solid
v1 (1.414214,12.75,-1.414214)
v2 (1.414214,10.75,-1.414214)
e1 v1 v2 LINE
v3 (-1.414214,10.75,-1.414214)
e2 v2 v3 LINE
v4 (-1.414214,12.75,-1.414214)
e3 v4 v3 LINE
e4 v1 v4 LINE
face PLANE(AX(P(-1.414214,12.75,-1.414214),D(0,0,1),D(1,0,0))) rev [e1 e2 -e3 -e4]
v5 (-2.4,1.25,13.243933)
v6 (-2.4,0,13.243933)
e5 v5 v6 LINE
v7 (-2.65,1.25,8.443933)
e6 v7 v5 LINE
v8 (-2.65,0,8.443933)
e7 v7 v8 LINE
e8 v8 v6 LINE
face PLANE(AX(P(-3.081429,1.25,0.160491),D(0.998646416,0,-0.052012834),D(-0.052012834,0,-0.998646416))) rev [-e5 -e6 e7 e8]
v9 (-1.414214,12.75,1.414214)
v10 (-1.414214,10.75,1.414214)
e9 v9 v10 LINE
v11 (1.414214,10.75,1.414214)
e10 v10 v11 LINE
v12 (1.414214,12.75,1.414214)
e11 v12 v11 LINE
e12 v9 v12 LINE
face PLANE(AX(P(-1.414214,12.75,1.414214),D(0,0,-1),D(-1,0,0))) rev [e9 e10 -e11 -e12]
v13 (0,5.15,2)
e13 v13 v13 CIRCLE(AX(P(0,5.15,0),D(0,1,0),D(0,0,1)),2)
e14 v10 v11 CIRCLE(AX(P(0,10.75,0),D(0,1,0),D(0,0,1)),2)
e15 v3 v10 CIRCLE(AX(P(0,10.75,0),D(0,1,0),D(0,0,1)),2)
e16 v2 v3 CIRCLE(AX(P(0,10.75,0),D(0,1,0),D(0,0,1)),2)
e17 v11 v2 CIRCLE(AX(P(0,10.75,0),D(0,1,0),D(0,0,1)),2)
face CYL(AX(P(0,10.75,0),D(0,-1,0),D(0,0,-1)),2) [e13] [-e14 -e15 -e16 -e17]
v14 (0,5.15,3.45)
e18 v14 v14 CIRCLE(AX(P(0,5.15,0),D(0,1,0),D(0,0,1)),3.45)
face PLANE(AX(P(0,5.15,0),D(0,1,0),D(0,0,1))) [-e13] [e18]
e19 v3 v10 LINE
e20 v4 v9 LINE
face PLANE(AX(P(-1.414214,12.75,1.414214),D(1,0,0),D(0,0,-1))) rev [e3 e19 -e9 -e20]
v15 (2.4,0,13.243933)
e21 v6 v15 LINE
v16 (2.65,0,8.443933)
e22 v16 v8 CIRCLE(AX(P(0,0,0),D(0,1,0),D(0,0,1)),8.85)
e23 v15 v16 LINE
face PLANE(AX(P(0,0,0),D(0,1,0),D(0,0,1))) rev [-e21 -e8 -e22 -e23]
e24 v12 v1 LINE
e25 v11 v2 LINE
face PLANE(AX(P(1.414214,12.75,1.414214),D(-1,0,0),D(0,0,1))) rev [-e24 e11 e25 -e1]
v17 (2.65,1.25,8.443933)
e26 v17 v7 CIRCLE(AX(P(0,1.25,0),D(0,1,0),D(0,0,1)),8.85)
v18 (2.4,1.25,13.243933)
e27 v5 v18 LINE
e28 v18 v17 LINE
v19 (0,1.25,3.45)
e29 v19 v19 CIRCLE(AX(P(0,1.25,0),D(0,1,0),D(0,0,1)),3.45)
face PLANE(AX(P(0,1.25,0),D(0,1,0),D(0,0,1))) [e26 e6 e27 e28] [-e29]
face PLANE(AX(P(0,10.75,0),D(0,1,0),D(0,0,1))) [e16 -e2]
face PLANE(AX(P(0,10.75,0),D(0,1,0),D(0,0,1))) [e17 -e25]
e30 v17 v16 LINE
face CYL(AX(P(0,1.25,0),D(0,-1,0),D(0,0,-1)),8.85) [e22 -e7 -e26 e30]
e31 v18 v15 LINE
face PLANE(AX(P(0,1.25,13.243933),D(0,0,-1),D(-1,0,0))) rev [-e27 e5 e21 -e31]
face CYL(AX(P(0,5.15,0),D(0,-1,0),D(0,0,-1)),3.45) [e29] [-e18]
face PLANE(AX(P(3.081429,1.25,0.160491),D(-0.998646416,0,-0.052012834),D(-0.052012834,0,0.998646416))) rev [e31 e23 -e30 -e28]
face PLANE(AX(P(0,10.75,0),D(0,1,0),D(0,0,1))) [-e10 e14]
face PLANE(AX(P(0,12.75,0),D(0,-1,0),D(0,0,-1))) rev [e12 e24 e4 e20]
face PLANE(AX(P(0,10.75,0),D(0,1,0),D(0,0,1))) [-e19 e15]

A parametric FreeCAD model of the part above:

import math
import FreeCAD as App
import Part
import Sketcher
from FreeCAD import Vector
Q = App.Units.Quantity


def add_polygon(sketch, points):
    """Adds a closed chain of lines whose ends are joined by coincident constraints."""
    first, n = sketch.GeometryCount, len(points)
    for a, b in zip(points, points[1:] + points[:1]):
        sketch.addGeometry(Part.LineSegment(App.Vector(*a, 0), App.Vector(*b, 0)), False)
    for i in range(n):
        sketch.addConstraint(Sketcher.Constraint("Coincident", first + i, 2, first + (i + 1) % n, 1))

doc = App.newDocument("Part")
body = doc.addObject("PartDesign::Body", "Body")

# Sketch on XZ plane
sketch1 = body.newObject("Sketcher::SketchObject", "Sketch")
sketch1.AttachmentSupport = (doc.getObject("XZ_Plane"), [""])
sketch1.MapMode = "FlatFace"
sketch1.addGeometry(Part.Circle(Vector(0, 0, 0), Vector(0, 0, 1), 9), False)
sketch1.addConstraint(Sketcher.Constraint("Coincident", 0, 3, -1, 1))
sketch1.addConstraint(Sketcher.Constraint("Diameter", 0, Q("17.7 mm")))
pad1 = body.newObject("PartDesign::Pad", "Pad")
pad1.Profile = sketch1
pad1.Length = 1.25
pad1.Reversed = True

# Sketch on XZ plane
sketch2 = body.newObject("Sketcher::SketchObject", "Sketch001")
sketch2.AttachmentSupport = (doc.getObject("XZ_Plane"), [""])
sketch2.MapMode = "FlatFace"
sketch2.AttachmentOffset = App.Placement(Vector(0, 0, -1.25), App.Rotation())
sketch2.addGeometry(Part.Circle(Vector(0, 0, 0), Vector(0, 0, 1), 3.5), False)
sketch2.addConstraint(Sketcher.Constraint("Coincident", 0, 3, -1, 1))
sketch2.addConstraint(Sketcher.Constraint("Diameter", 0, Q("6.9 mm")))
pad2 = body.newObject("PartDesign::Pad", "Pad001")
pad2.Profile = sketch2
pad2.Length = 3.9
pad2.Reversed = True

# Sketch on XZ plane
sketch3 = body.newObject("Sketcher::SketchObject", "Sketch002")
sketch3.AttachmentSupport = (doc.getObject("XZ_Plane"), [""])
sketch3.MapMode = "FlatFace"
sketch3.AttachmentOffset = App.Placement(Vector(0, 0, -5.15), App.Rotation())
sketch3.addGeometry(Part.Circle(Vector(0, 0, 0), Vector(0, 0, 1), 2), False)
sketch3.addConstraint(Sketcher.Constraint("Coincident", 0, 3, -1, 1))
sketch3.addConstraint(Sketcher.Constraint("Diameter", 0, Q("4 mm")))
pad3 = body.newObject("PartDesign::Pad", "Pad002")
pad3.Profile = sketch3
pad3.Length = 5.6
pad3.Reversed = True

# Sketch on XZ plane
sketch4 = body.newObject("Sketcher::SketchObject", "Sketch003")
sketch4.AttachmentSupport = (doc.getObject("XZ_Plane"), [""])
sketch4.MapMode = "FlatFace"
sketch4.AttachmentOffset = App.Placement(Vector(0, 0, -10.75), App.Rotation())
add_polygon(sketch4, [(-1.4, -1.4), (-1.4, 1.4), (1.4, 1.4), (1.4, -1.4)])  # lines 0-3
sketch4.addConstraint(Sketcher.Constraint("Vertical", 0))
sketch4.addConstraint(Sketcher.Constraint("Horizontal", 1))
sketch4.addConstraint(Sketcher.Constraint("Vertical", 2))
sketch4.addConstraint(Sketcher.Constraint("Horizontal", 3))
sketch4.addConstraint(Sketcher.Constraint("Symmetric", 0, 2, 2, 2, -1, 1))
sketch4.addConstraint(Sketcher.Constraint("Equal", 3, 0))
sketch4.addConstraint(Sketcher.Constraint("DistanceX", 1, 1, 1, 2, Q("2.828427 mm")))
pad4 = body.newObject("PartDesign::Pad", "Pad003")
pad4.Profile = sketch4
pad4.Length = 2
pad4.Reversed = True

# Sketch on XZ plane
sketch5 = body.newObject("Sketcher::SketchObject", "Sketch004")
sketch5.AttachmentSupport = (doc.getObject("XZ_Plane"), [""])
sketch5.MapMode = "FlatFace"
sketch5.addGeometry(Part.ArcOfCircle(Part.Circle(Vector(0, 0, 0), Vector(0, 0, 1), 8.9), math.radians(90), math.radians(107.42)), False)
sketch5.addGeometry(Part.ArcOfCircle(Part.Circle(Vector(0, 0, 0), Vector(0, 0, 1), 8.9), math.radians(72.58), math.radians(90)), False)
sketch5.addGeometry(Part.LineSegment(Vector(2.6, 8.4, 0), Vector(2.4, 13.2, 0)), False)
sketch5.addGeometry(Part.LineSegment(Vector(2.4, 13.2, 0), Vector(-2.4, 13.2, 0)), False)
sketch5.addGeometry(Part.LineSegment(Vector(-2.4, 13.2, 0), Vector(-2.6, 8.4, 0)), False)
sketch5.addConstraint(Sketcher.Constraint("Tangent", 0, 1, 1, 2))
sketch5.addConstraint(Sketcher.Constraint("Coincident", 1, 1, 2, 1))
sketch5.addConstraint(Sketcher.Constraint("Coincident", 2, 2, 3, 1))
sketch5.addConstraint(Sketcher.Constraint("Coincident", 3, 2, 4, 1))
sketch5.addConstraint(Sketcher.Constraint("Coincident", 4, 2, 0, 2))
sketch5.addConstraint(Sketcher.Constraint("Horizontal", 3))
sketch5.addConstraint(Sketcher.Constraint("Coincident", 0, 3, -1, 1))
sketch5.addConstraint(Sketcher.Constraint("Equal", 0, 1))
sketch5.addConstraint(Sketcher.Constraint("PointOnObject", 0, 1, -2))
sketch5.addConstraint(Sketcher.Constraint("Horizontal", 1, 1, 4, 2))
sketch5.addConstraint(Sketcher.Constraint("Equal", 2, 4))
sketch5.addConstraint(Sketcher.Constraint("Radius", 0, Q("8.85 mm")))
sketch5.addConstraint(Sketcher.Constraint("DistanceX", 3, 2, 3, 1, Q("4.8 mm")))
sketch5.addConstraint(Sketcher.Constraint("DistanceY", 1, 1, 2, 2, Q("4.8 mm")))
sketch5.addConstraint(Sketcher.Constraint("DistanceX", 4, 2, 1, 1, Q("5.3 mm")))
pad5 = body.newObject("PartDesign::Pad", "Pad004")
pad5.Profile = sketch5
pad5.Length = 1.25
pad5.Reversed = True

doc.recompute()
